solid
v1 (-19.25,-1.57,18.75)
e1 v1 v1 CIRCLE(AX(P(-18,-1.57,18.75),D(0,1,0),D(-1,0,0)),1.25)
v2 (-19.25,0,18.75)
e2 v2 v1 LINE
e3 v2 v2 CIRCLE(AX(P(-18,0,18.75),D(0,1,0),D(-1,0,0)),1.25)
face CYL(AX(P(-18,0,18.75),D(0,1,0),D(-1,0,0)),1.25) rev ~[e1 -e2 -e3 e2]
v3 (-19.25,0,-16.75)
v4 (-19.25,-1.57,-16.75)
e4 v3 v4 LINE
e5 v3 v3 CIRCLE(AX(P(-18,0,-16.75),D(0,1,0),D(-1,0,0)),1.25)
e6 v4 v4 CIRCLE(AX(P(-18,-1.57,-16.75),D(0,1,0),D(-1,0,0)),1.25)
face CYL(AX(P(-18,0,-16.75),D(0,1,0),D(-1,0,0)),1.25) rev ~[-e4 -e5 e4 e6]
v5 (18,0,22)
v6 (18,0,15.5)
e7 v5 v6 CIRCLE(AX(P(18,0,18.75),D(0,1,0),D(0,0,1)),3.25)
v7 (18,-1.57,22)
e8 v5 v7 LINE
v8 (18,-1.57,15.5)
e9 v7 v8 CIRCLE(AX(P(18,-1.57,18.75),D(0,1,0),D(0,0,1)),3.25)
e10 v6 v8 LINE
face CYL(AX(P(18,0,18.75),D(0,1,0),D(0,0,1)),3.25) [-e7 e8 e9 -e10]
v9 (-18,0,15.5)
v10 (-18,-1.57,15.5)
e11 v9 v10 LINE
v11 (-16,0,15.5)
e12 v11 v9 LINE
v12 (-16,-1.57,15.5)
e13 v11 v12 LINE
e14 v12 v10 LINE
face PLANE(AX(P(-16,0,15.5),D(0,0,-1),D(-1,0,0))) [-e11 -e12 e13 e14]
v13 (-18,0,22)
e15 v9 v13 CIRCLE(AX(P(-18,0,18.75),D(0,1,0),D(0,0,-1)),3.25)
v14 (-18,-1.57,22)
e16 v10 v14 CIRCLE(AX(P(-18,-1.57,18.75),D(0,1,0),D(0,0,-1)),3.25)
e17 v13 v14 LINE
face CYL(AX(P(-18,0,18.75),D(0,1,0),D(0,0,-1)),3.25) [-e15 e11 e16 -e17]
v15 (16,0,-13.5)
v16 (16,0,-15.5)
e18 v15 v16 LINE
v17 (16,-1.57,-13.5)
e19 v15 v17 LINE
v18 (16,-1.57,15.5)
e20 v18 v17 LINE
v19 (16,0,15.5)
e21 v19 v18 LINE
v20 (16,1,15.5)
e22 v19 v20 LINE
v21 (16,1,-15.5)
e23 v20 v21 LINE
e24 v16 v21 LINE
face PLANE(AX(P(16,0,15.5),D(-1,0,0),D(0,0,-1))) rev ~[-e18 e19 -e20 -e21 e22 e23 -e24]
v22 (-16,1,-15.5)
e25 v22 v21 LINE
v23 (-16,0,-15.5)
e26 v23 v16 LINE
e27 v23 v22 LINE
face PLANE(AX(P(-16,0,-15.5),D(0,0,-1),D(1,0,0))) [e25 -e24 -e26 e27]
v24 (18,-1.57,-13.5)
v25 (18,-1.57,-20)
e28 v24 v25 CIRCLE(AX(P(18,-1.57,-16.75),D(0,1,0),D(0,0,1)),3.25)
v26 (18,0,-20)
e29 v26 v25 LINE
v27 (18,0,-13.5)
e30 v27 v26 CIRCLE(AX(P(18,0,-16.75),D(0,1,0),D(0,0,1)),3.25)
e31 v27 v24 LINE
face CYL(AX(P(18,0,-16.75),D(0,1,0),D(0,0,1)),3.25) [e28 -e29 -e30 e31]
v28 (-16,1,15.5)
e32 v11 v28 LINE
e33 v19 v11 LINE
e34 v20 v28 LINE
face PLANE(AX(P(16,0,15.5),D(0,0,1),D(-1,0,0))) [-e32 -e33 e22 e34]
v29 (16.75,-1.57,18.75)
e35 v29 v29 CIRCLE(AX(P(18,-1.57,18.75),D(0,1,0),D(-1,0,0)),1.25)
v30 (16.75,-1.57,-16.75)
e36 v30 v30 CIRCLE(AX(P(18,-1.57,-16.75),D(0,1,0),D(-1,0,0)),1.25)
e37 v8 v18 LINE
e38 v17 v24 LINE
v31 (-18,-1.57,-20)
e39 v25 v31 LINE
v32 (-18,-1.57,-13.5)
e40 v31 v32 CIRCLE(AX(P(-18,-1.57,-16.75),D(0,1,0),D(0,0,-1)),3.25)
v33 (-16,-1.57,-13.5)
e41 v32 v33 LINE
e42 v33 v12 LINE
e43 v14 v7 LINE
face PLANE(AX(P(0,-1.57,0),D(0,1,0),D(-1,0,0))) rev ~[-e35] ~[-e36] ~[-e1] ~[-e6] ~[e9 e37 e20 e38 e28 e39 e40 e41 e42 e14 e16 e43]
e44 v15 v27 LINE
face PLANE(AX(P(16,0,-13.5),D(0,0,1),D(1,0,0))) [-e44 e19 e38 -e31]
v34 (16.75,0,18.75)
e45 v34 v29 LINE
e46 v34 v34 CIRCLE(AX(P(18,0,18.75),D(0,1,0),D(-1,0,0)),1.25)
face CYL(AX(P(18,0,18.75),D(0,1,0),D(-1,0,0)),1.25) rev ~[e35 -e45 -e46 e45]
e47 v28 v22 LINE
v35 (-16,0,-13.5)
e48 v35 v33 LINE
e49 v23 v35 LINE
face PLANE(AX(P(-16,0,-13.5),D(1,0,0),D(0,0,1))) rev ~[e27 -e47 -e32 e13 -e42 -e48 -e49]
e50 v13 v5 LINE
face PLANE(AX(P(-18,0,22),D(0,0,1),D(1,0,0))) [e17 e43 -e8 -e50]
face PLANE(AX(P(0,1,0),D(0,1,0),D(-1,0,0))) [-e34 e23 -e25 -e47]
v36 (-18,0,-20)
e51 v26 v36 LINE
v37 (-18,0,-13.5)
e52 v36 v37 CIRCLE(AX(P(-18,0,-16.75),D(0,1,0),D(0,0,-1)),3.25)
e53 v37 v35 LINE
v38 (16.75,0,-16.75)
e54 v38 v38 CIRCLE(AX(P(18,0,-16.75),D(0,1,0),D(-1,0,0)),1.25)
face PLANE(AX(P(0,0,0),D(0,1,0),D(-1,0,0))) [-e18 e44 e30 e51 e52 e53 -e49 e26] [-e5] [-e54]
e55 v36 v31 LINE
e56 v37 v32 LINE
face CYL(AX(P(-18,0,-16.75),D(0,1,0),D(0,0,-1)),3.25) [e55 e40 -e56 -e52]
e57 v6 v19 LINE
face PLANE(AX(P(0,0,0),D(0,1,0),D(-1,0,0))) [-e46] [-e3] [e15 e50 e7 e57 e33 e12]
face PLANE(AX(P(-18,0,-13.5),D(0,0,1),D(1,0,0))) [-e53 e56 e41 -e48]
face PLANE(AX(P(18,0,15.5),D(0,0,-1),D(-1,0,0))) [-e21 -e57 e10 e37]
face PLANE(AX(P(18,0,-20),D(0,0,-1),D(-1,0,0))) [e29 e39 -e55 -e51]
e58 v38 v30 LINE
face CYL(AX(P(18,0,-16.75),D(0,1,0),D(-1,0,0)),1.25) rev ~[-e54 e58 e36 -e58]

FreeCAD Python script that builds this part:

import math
import FreeCAD as App
import Part
import Sketcher


def add_polygon(sketch, points):
    """Adds a closed chain of lines whose ends are joined by coincident constraints."""
    first, n = sketch.GeometryCount, len(points)
    for a, b in zip(points, points[1:] + points[:1]):
        sketch.addGeometry(Part.LineSegment(App.Vector(*a, 0), App.Vector(*b, 0)), False)
    for i in range(n):
        sketch.addConstraint(Sketcher.Constraint("Coincident", first + i, 2, first + (i + 1) % n, 1))

doc = App.newDocument("Part")
body = doc.addObject("PartDesign::Body", "Body")

# Sketch on XZ plane
sketch1 = doc.addObject("Sketcher::SketchObject", "Sketch")
body.addObject(sketch1)
sketch1.AttachmentSupport = (doc.XZ_Plane, [""])
sketch1.MapMode = "FlatFace"
sketch1.addGeometry(Part.ArcOfCircle(Part.Circle(App.Vector(-18, 18.8, 0), App.Vector(0, 0, 1), 3.2), math.radians(90), math.radians(270)), False)
sketch1.addGeometry(Part.LineSegment(App.Vector(-18, 22, 0), App.Vector(18, 22, 0)), False)
sketch1.addGeometry(Part.ArcOfCircle(Part.Circle(App.Vector(18, 18.8, 0), App.Vector(0, 0, 1), 3.2), math.radians(-90), math.radians(90)), False)
sketch1.addGeometry(Part.LineSegment(App.Vector(18, 15.5, 0), App.Vector(16, 15.5, 0)), False)
sketch1.addGeometry(Part.LineSegment(App.Vector(16, 15.5, 0), App.Vector(16, -13.5, 0)), False)
sketch1.addGeometry(Part.LineSegment(App.Vector(16, -13.5, 0), App.Vector(18, -13.5, 0)), False)
sketch1.addGeometry(Part.ArcOfCircle(Part.Circle(App.Vector(18, -16.8, 0), App.Vector(0, 0, 1), 3.2), math.radians(-90), math.radians(90)), False)
sketch1.addGeometry(Part.LineSegment(App.Vector(18, -20, 0), App.Vector(-18, -20, 0)), False)
sketch1.addGeometry(Part.ArcOfCircle(Part.Circle(App.Vector(-18, -16.8, 0), App.Vector(0, 0, 1), 3.2), math.radians(90), math.radians(270)), False)
sketch1.addGeometry(Part.LineSegment(App.Vector(-18, -13.5, 0), App.Vector(-16, -13.5, 0)), False)
sketch1.addGeometry(Part.LineSegment(App.Vector(-16, -13.5, 0), App.Vector(-16, 15.5, 0)), False)
sketch1.addGeometry(Part.LineSegment(App.Vector(-16, 15.5, 0), App.Vector(-18, 15.5, 0)), False)
sketch1.addGeometry(Part.Circle(App.Vector(18, 18.8, 0), App.Vector(0, 0, 1), 1.2), False)
sketch1.addGeometry(Part.Circle(App.Vector(-18, 18.8, 0), App.Vector(0, 0, 1), 1.2), False)
sketch1.addGeometry(Part.Circle(App.Vector(-18, -16.8, 0), App.Vector(0, 0, 1), 1.2), False)
sketch1.addGeometry(Part.Circle(App.Vector(18, -16.8, 0), App.Vector(0, 0, 1), 1.2), False)
sketch1.addConstraint(Sketcher.Constraint("Tangent", 0, 1, 1, 1))
sketch1.addConstraint(Sketcher.Constraint("Tangent", 1, 2, 2, 2))
sketch1.addConstraint(Sketcher.Constraint("Tangent", 2, 1, 3, 1))
sketch1.addConstraint(Sketcher.Constraint("Coincident", 3, 2, 4, 1))
sketch1.addConstraint(Sketcher.Constraint("Coincident", 4, 2, 5, 1))
sketch1.addConstraint(Sketcher.Constraint("Tangent", 5, 2, 6, 2))
sketch1.addConstraint(Sketcher.Constraint("Tangent", 6, 1, 7, 1))
sketch1.addConstraint(Sketcher.Constraint("Tangent", 7, 2, 8, 2))
sketch1.addConstraint(Sketcher.Constraint("Tangent", 8, 1, 9, 1))
sketch1.addConstraint(Sketcher.Constraint("Coincident", 9, 2, 10, 1))
sketch1.addConstraint(Sketcher.Constraint("Coincident", 10, 2, 11, 1))
sketch1.addConstraint(Sketcher.Constraint("Tangent", 11, 2, 0, 2))
sketch1.addConstraint(Sketcher.Constraint("Horizontal", 1))
sketch1.addConstraint(Sketcher.Constraint("Horizontal", 3))
sketch1.addConstraint(Sketcher.Constraint("Vertical", 4))
sketch1.addConstraint(Sketcher.Constraint("Horizontal", 5))
sketch1.addConstraint(Sketcher.Constraint("Horizontal", 7))
sketch1.addConstraint(Sketcher.Constraint("Horizontal", 9))
sketch1.addConstraint(Sketcher.Constraint("Vertical", 10))
sketch1.addConstraint(Sketcher.Constraint("Horizontal", 11))
sketch1.addConstraint(Sketcher.Constraint("Coincident", 12, 3, 2, 3))
sketch1.addConstraint(Sketcher.Constraint("Coincident", 13, 3, 0, 3))
sketch1.addConstraint(Sketcher.Constraint("Coincident", 14, 3, 8, 3))
sketch1.addConstraint(Sketcher.Constraint("Coincident", 15, 3, 6, 3))
sketch1.addConstraint(Sketcher.Constraint("Equal", 0, 2))
sketch1.addConstraint(Sketcher.Constraint("Equal", 2, 6))
sketch1.addConstraint(Sketcher.Constraint("Equal", 6, 8))
sketch1.addConstraint(Sketcher.Constraint("Equal", 12, 13))
sketch1.addConstraint(Sketcher.Constraint("Equal", 13, 14))
sketch1.addConstraint(Sketcher.Constraint("Equal", 14, 15))
sketch1.addConstraint(Sketcher.Constraint("Vertical", 2, 3, 6, 3))
sketch1.addConstraint(Sketcher.Constraint("Vertical", 0, 3, 8, 3))
sketch1.addConstraint(Sketcher.Constraint("Equal", 5, 9))
sketch1.addConstraint(Sketcher.Constraint("Diameter", 12, 2.5))
sketch1.addConstraint(Sketcher.Constraint("DistanceX", 3, 2, 3, 1, 2.0))
sketch1.addConstraint(Sketcher.Constraint("DistanceX", 9, 2, 4, 2, 32.0))
sketch1.addConstraint(Sketcher.Constraint("DistanceY", 4, 2, 4, 1, 29.0))
sketch1.addConstraint(Sketcher.Constraint("Radius", 0, 3.25))
sketch1.addConstraint(Sketcher.Constraint("DistanceX", 0, 3, -1, 1, 18.0))
sketch1.addConstraint(Sketcher.Constraint("DistanceY", -1, 1, 0, 1, 22.0))
pad1 = doc.addObject("PartDesign::Pad", "Pad")
body.addObject(pad1)
pad1.Profile = sketch1
pad1.Length = 1.57

# Sketch on XZ plane
sketch2 = doc.addObject("Sketcher::SketchObject", "Sketch001")
body.addObject(sketch2)
sketch2.AttachmentSupport = (doc.XZ_Plane, [""])
sketch2.MapMode = "FlatFace"
add_polygon(sketch2, [(-16, -16), (-16, 16), (16, 16), (16, -16)])  # lines 0-3
sketch2.addConstraint(Sketcher.Constraint("Vertical", 0))
sketch2.addConstraint(Sketcher.Constraint("Horizontal", 1))
sketch2.addConstraint(Sketcher.Constraint("Vertical", 2))
sketch2.addConstraint(Sketcher.Constraint("Horizontal", 3))
sketch2.addConstraint(Sketcher.Constraint("Symmetric", 0, 2, 2, 2, -1, 1))
sketch2.addConstraint(Sketcher.Constraint("DistanceX", 1, 1, 1, 2, 32.0))
sketch2.addConstraint(Sketcher.Constraint("DistanceY", 0, 1, 0, 2, 31.0))
pad2 = doc.addObject("PartDesign::Pad", "Pad001")
body.addObject(pad2)
pad2.Profile = sketch2
pad2.Length = 1
pad2.Reversed = True

doc.recompute()
